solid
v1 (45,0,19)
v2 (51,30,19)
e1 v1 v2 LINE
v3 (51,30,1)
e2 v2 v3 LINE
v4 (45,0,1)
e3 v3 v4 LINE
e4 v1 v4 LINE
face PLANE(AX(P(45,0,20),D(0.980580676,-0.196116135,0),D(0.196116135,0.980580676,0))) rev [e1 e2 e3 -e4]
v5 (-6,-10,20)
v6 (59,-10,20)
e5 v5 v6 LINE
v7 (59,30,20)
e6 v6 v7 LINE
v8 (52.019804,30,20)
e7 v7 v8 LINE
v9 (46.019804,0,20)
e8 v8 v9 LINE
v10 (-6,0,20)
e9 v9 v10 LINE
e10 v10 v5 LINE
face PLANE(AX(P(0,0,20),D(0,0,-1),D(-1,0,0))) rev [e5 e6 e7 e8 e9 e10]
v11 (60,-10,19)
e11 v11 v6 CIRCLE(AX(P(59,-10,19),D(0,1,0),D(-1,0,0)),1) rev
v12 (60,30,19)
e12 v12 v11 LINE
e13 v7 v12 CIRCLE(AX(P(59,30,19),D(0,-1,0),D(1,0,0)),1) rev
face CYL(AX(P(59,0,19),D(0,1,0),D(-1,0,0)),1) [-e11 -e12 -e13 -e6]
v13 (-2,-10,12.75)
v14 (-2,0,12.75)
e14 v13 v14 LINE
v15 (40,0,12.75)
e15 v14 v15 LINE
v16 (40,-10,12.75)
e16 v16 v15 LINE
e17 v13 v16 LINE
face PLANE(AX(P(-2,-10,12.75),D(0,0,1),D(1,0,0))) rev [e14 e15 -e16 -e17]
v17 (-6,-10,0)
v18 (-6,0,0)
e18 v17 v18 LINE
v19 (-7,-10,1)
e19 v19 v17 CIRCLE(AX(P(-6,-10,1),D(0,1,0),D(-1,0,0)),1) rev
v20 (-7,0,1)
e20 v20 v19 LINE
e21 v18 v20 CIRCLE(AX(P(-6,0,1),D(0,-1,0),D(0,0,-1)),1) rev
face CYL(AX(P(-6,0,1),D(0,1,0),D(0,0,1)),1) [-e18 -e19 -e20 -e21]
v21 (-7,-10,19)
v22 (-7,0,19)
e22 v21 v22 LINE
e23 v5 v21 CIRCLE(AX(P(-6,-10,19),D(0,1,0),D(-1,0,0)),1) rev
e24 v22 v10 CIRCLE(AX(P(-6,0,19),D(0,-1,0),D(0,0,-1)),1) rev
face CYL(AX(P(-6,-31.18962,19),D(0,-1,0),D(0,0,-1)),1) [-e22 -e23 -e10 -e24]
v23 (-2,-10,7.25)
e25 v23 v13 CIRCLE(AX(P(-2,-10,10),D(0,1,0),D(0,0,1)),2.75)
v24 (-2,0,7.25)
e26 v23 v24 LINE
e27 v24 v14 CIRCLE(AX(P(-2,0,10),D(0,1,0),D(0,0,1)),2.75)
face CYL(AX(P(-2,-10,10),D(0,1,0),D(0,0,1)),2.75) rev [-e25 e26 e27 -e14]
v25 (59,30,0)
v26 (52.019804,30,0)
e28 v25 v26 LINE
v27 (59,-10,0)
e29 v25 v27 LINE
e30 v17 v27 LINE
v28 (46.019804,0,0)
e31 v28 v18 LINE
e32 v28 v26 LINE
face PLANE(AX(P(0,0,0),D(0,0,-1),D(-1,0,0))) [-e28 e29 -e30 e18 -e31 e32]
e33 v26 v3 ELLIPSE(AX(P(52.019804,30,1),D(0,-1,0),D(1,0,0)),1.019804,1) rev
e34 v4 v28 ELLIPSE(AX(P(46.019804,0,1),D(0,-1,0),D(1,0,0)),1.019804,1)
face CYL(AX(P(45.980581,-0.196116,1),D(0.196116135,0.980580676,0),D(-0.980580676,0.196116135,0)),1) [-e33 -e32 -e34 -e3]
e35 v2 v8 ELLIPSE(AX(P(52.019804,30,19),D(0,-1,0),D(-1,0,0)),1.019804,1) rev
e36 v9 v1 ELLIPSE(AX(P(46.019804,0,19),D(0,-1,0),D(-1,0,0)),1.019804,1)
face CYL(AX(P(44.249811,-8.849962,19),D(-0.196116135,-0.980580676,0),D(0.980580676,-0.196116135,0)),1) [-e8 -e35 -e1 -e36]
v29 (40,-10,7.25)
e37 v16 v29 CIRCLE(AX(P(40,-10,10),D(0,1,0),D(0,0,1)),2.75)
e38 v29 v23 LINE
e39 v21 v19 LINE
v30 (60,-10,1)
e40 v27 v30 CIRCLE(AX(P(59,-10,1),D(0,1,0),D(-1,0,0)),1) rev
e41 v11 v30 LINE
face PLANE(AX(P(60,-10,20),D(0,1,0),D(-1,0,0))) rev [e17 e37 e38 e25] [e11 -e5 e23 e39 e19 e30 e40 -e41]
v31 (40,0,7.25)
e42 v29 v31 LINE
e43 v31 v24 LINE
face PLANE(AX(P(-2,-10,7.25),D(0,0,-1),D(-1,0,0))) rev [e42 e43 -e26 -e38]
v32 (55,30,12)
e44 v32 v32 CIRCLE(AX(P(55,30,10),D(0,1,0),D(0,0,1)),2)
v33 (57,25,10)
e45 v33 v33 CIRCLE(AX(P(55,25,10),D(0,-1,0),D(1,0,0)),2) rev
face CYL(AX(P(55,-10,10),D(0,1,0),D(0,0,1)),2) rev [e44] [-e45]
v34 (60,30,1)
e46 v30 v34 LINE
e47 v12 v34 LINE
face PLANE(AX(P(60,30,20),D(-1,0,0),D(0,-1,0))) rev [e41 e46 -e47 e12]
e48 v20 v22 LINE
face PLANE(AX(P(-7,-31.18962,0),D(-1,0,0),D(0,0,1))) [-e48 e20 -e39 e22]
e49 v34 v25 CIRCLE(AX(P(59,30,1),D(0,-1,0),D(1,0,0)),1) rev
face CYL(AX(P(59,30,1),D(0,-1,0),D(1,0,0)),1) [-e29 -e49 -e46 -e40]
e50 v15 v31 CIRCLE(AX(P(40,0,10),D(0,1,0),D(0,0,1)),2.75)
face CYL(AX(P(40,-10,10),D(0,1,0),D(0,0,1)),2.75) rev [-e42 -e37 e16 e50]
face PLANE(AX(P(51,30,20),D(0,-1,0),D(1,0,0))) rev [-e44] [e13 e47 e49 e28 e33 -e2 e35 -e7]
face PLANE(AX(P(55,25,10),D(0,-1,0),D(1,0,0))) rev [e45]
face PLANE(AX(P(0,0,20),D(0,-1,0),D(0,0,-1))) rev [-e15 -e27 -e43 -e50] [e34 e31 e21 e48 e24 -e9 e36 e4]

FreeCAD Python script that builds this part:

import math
import FreeCAD as App
import Part
import Sketcher
from FreeCAD import Vector


def edges_at(feature, points):
    """Names of the edges that pass closest to the given points."""
    edges = feature.Shape.Edges
    near = lambda p: min(range(len(edges)), key=lambda i: edges[i].distToShape(Part.Vertex(*p))[0])
    return sorted({f"Edge{near(p) + 1}" for p in points})


def add_polygon(sketch, points):
    """Adds a closed chain of lines whose ends are joined by coincident constraints."""
    first, n = sketch.GeometryCount, len(points)
    for a, b in zip(points, points[1:] + points[:1]):
        sketch.addGeometry(Part.LineSegment(App.Vector(*a, 0), App.Vector(*b, 0)), False)
    for i in range(n):
        sketch.addConstraint(Sketcher.Constraint("Coincident", first + i, 2, first + (i + 1) % n, 1))

doc = App.newDocument("Part")
params = doc.addObject("Spreadsheet::Sheet", "Params")
for row, (alias, value) in enumerate([
    ("sketch1_width", "45 mm"),
    ("sketch1_width2", "60 mm"),
    ("sketch1_width3", "9 mm"),
    ("sketch1_height", "10 mm"),
    ("sketch1_height2", "40 mm"),
    ("pad1_length", "20 mm"),
    ("sketch2_diameter", "4 mm"),
    ("sketch2_diameter2", "5.5 mm"),
    ("sketch3_diameter", "4 mm"),
    ("pad2_length", "35 mm"),
    ("sketch4_width", "7 mm"),
    ("sketch4_height", "20 mm"),
    ("pad3_length", "10 mm"),
    ("fillet_radius", "1 mm"),
    ("sketch5_width", "42 mm"),
    ("sketch5_radius", "2.75 mm"),
], start=1):
    params.set(f"A{row}", alias)
    params.set(f"B{row}", "=" + value)
    params.setAlias(f"B{row}", alias)

body = doc.addObject("PartDesign::Body", "Body")

sketch1 = body.newObject("Sketcher::SketchObject", "Sketch")
sketch1.AttachmentSupport = (doc.getObject("XY_Plane"), [""])
sketch1.MapMode = "FlatFace"
add_polygon(sketch1, [(45, 0), (0, 0), (0, -10), (60, -10), (60, 30), (51, 30)])
sketch1.addConstraint([
    Sketcher.Constraint("Horizontal", 0),
    Sketcher.Constraint("Vertical", 1),
    Sketcher.Constraint("Horizontal", 2),
    Sketcher.Constraint("Vertical", 3),
    Sketcher.Constraint("Horizontal", 4),
    Sketcher.Constraint("Coincident", 0, 2, -1, 1),
    Sketcher.Constraint("DistanceX", 0, 2, 0, 1, 45.0),
    Sketcher.Constraint("DistanceX", 2, 1, 2, 2, 60.0),
    Sketcher.Constraint("DistanceX", 4, 2, 4, 1, 9.0),
    Sketcher.Constraint("DistanceY", 1, 2, 1, 1, 10.0),
    Sketcher.Constraint("DistanceY", 3, 1, 3, 2, 40.0),
])
sketch1.setExpression("Constraints[12]", "Params.sketch1_width")
sketch1.setExpression("Constraints[13]", "Params.sketch1_width2")
sketch1.setExpression("Constraints[14]", "Params.sketch1_width3")
sketch1.setExpression("Constraints[15]", "Params.sketch1_height")
sketch1.setExpression("Constraints[16]", "Params.sketch1_height2")
pad1 = body.newObject("PartDesign::Pad", "Pad")
pad1.Profile = sketch1
pad1.setExpression("Length", "Params.pad1_length")

sketch2 = body.newObject("Sketcher::SketchObject", "Sketch001")
sketch2.AttachmentSupport = (doc.getObject("XZ_Plane"), [""])
sketch2.MapMode = "FlatFace"
sketch2.AttachmentOffset = App.Placement(Vector(0, 0, -30), App.Rotation())
sketch2.addGeometry([
    Part.Circle(Vector(55, 10, 0), Vector(0, 0, 1), 2),
    Part.Circle(Vector(3, 10, 0), Vector(0, 0, 1), 2.8),
], False)
sketch2.addConstraint([
    Sketcher.Constraint("Horizontal", 0, 3, 1, 3),
    Sketcher.Constraint("Diameter", 0, 4.0),
    Sketcher.Constraint("Diameter", 1, 5.5),
    Sketcher.Constraint("DistanceX", -1, 1, 0, 3, 55.0),
    Sketcher.Constraint("DistanceY", -1, 1, 0, 3, 10.0),
    Sketcher.Constraint("DistanceX", -1, 1, 1, 3, 3.0),
])
sketch2.setExpression("Constraints[1]", "Params.sketch2_diameter")
sketch2.setExpression("Constraints[2]", "Params.sketch2_diameter2")
pocket1 = body.newObject("PartDesign::Pocket", "Pocket")
pocket1.Profile = sketch2
pocket1.Type = "ThroughAll"
pocket1.Reversed = True

sketch3 = body.newObject("Sketcher::SketchObject", "Sketch002")
sketch3.AttachmentSupport = (doc.getObject("XZ_Plane"), [""])
sketch3.MapMode = "FlatFace"
sketch3.AttachmentOffset = App.Placement(Vector(0, 0, -25), App.Rotation())
sketch3.addGeometry(Part.Circle(Vector(55, 10, 0), Vector(0, 0, 1), 2), False)
sketch3.addConstraint([
    Sketcher.Constraint("Diameter", 0, 4.0),
    Sketcher.Constraint("DistanceX", -1, 1, 0, 3, 55.0),
    Sketcher.Constraint("DistanceY", -1, 1, 0, 3, 10.0),
])
sketch3.setExpression("Constraints[0]", "Params.sketch3_diameter")
pad2 = body.newObject("PartDesign::Pad", "Pad001")
pad2.Profile = sketch3
pad2.setExpression("Length", "Params.pad2_length")

sketch4 = body.newObject("Sketcher::SketchObject", "Sketch003")
sketch4.AttachmentSupport = (doc.getObject("XZ_Plane"), [""])
sketch4.MapMode = "FlatFace"
add_polygon(sketch4, [(-7, 0), (-7, 20), (0, 20), (0, 0)])
sketch4.addConstraint([
    Sketcher.Constraint("Vertical", 0),
    Sketcher.Constraint("Horizontal", 1),
    Sketcher.Constraint("Vertical", 2),
    Sketcher.Constraint("Horizontal", 3),
    Sketcher.Constraint("Coincident", 2, 2, -1, 1),
    Sketcher.Constraint("DistanceX", 1, 1, 1, 2, 7.0),
    Sketcher.Constraint("DistanceY", 0, 1, 0, 2, 20.0),
])
sketch4.setExpression("Constraints[9]", "Params.sketch4_width")
sketch4.setExpression("Constraints[10]", "Params.sketch4_height")
pad3 = body.newObject("PartDesign::Pad", "Pad002")
pad3.Profile = sketch4
pad3.setExpression("Length", "Params.pad3_length")
doc.recompute()

fillet = body.newObject("PartDesign::Fillet", "Fillet")
fillet.Base = (pad3, edges_at(pad3, [
    (60, 10, 20),
    (48, 15, 20),
    (-7, -5, 20),
    (-7, -5, 0),
    (48, 15, 0),
    (60, 10, 0),
]))
fillet.setExpression("Radius", "Params.fillet_radius")

sketch5 = body.newObject("Sketcher::SketchObject", "Sketch004")
sketch5.AttachmentSupport = (doc.getObject("XZ_Plane"), [""])
sketch5.MapMode = "FlatFace"
sketch5.addGeometry([
    Part.LineSegment(Vector(40, 7.2, 0), Vector(-2, 7.2, 0)),
    Part.ArcOfCircle(Part.Circle(Vector(-2, 10, 0), Vector(0, 0, 1), 2.8), math.radians(90), math.radians(270)),
    Part.LineSegment(Vector(-2, 12.8, 0), Vector(40, 12.8, 0)),
    Part.ArcOfCircle(Part.Circle(Vector(40, 10, 0), Vector(0, 0, 1), 2.8), math.radians(-90), math.radians(90)),
], False)
sketch5.addConstraint([
    Sketcher.Constraint("Tangent", 0, 2, 1, 2),
    Sketcher.Constraint("Tangent", 1, 1, 2, 1),
    Sketcher.Constraint("Tangent", 2, 2, 3, 2),
    Sketcher.Constraint("Tangent", 3, 1, 0, 1),
    Sketcher.Constraint("Horizontal", 0),
    Sketcher.Constraint("Horizontal", 2),
    Sketcher.Constraint("DistanceX", 0, 2, 0, 1, 42.0),
    Sketcher.Constraint("Radius", 1, 2.75),
    Sketcher.Constraint("DistanceX", 1, 3, -1, 1, 2.0),
    Sketcher.Constraint("DistanceY", -1, 1, 1, 3, 10.0),
])
sketch5.setExpression("Constraints[6]", "Params.sketch5_width")
sketch5.setExpression("Constraints[7]", "Params.sketch5_radius")
pocket2 = body.newObject("PartDesign::Pocket", "Pocket001")
pocket2.Profile = sketch5
pocket2.Type = "ThroughAll"
pocket2.Reversed = True

doc.recompute()
